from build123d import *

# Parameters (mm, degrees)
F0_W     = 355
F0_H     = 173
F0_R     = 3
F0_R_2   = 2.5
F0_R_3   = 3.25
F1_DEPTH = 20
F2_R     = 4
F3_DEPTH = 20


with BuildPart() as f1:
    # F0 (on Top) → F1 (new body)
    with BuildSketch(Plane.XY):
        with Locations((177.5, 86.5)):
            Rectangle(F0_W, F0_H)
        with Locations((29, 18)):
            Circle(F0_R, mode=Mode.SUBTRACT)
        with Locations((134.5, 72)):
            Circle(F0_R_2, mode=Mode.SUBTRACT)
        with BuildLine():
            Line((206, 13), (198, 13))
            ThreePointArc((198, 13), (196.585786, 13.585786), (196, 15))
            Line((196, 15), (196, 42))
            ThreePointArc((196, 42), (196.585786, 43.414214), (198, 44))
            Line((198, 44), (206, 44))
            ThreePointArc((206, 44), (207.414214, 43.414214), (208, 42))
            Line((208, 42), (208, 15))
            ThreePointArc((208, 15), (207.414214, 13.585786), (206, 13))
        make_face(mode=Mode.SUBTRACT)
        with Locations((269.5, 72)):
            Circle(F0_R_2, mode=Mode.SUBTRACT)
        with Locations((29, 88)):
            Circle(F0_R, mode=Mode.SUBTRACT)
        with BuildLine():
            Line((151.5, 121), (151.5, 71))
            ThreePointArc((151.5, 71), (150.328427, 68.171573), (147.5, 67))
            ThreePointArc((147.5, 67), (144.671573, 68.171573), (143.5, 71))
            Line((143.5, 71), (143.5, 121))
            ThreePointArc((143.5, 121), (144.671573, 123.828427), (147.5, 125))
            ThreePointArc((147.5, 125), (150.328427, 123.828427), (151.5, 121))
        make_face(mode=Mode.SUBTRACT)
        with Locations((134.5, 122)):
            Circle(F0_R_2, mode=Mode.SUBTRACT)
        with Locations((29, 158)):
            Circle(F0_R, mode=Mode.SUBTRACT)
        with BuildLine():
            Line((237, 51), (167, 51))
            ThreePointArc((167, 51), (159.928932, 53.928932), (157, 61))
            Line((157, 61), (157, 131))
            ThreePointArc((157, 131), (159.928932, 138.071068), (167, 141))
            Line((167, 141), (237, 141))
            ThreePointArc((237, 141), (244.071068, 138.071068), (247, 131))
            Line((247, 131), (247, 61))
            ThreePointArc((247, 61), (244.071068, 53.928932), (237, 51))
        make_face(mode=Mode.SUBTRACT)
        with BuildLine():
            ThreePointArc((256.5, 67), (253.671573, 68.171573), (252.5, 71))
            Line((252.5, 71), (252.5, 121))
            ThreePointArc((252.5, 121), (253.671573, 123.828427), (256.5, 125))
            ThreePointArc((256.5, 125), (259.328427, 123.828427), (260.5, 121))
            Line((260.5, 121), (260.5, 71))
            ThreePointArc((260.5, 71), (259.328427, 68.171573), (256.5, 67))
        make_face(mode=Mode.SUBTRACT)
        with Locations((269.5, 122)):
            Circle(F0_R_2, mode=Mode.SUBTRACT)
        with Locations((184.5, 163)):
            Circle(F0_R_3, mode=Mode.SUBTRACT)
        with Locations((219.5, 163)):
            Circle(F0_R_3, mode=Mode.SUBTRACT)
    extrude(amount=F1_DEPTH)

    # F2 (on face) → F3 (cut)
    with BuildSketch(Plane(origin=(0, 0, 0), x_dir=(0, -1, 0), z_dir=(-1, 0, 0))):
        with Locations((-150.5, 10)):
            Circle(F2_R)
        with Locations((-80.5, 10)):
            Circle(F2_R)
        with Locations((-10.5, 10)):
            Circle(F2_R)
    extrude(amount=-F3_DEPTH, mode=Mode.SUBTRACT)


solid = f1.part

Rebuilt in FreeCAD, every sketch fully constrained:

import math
import FreeCAD as App
import Part
import Sketcher
Q = App.Units.Quantity


def add_polygon(sketch, points):
    """Adds a closed chain of lines whose ends are joined by coincident constraints."""
    first, n = sketch.GeometryCount, len(points)
    for a, b in zip(points, points[1:] + points[:1]):
        sketch.addGeometry(Part.LineSegment(App.Vector(*a, 0), App.Vector(*b, 0)), False)
    for i in range(n):
        sketch.addConstraint(Sketcher.Constraint("Coincident", first + i, 2, first + (i + 1) % n, 1))

doc = App.newDocument("Part")
body = doc.addObject("PartDesign::Body", "Body")

# Sketch on XY plane
sketch1 = doc.addObject("Sketcher::SketchObject", "Sketch")
body.addObject(sketch1)
sketch1.AttachmentSupport = (doc.XY_Plane, [""])
sketch1.MapMode = "FlatFace"
add_polygon(sketch1, [(0, 173), (0, 0), (355, 0), (355, 173)])  # lines 0-3
sketch1.addGeometry(Part.Circle(App.Vector(29, 18, 0), App.Vector(0, 0, 1), 3), False)  # 4
sketch1.addGeometry(Part.Circle(App.Vector(29, 88, 0), App.Vector(0, 0, 1), 3), False)  # 5
sketch1.addGeometry(Part.Circle(App.Vector(134.5, 72, 0), App.Vector(0, 0, 1), 2.5), False)  # 6
sketch1.addGeometry(Part.ArcOfCircle(Part.Circle(App.Vector(206, 15, 0), App.Vector(0, 0, 1), 2), math.radians(-90), math.radians(0)), False)  # 7
sketch1.addGeometry(Part.LineSegment(App.Vector(206, 13, 0), App.Vector(198, 13, 0)), False)  # 8
sketch1.addGeometry(Part.ArcOfCircle(Part.Circle(App.Vector(198, 15, 0), App.Vector(0, 0, 1), 2), math.radians(180), math.radians(270)), False)  # 9
sketch1.addGeometry(Part.LineSegment(App.Vector(196, 15, 0), App.Vector(196, 42, 0)), False)  # 10
sketch1.addGeometry(Part.ArcOfCircle(Part.Circle(App.Vector(198, 42, 0), App.Vector(0, 0, 1), 2), math.radians(90), math.radians(180)), False)  # 11
sketch1.addGeometry(Part.LineSegment(App.Vector(198, 44, 0), App.Vector(206, 44, 0)), False)  # 12
sketch1.addGeometry(Part.ArcOfCircle(Part.Circle(App.Vector(206, 42, 0), App.Vector(0, 0, 1), 2), math.radians(0), math.radians(90)), False)  # 13
sketch1.addGeometry(Part.LineSegment(App.Vector(208, 42, 0), App.Vector(208, 15, 0)), False)  # 14
sketch1.addGeometry(Part.Circle(App.Vector(269.5, 72, 0), App.Vector(0, 0, 1), 2.5), False)  # 15
sketch1.addGeometry(Part.ArcOfCircle(Part.Circle(App.Vector(147.5, 121, 0), App.Vector(0, 0, 1), 4), math.radians(0), math.radians(90)), False)  # 16
sketch1.addGeometry(Part.LineSegment(App.Vector(151.5, 121, 0), App.Vector(151.5, 71, 0)), False)  # 17
sketch1.addGeometry(Part.ArcOfCircle(Part.Circle(App.Vector(147.5, 71, 0), App.Vector(0, 0, 1), 4), math.radians(-90), math.radians(0)), False)  # 18
sketch1.addGeometry(Part.ArcOfCircle(Part.Circle(App.Vector(147.5, 71, 0), App.Vector(0, 0, 1), 4), math.radians(-180), math.radians(-90)), False)  # 19
sketch1.addGeometry(Part.LineSegment(App.Vector(143.5, 71, 0), App.Vector(143.5, 121, 0)), False)  # 20
sketch1.addGeometry(Part.ArcOfCircle(Part.Circle(App.Vector(147.5, 121, 0), App.Vector(0, 0, 1), 4), math.radians(90), math.radians(180)), False)  # 21
sketch1.addGeometry(Part.Circle(App.Vector(134.5, 122, 0), App.Vector(0, 0, 1), 2.5), False)  # 22
sketch1.addGeometry(Part.Circle(App.Vector(29, 158, 0), App.Vector(0, 0, 1), 3), False)  # 23
sketch1.addGeometry(Part.ArcOfCircle(Part.Circle(App.Vector(237, 61, 0), App.Vector(0, 0, 1), 10), math.radians(-90), math.radians(0)), False)  # 24
sketch1.addGeometry(Part.LineSegment(App.Vector(237, 51, 0), App.Vector(167, 51, 0)), False)  # 25
sketch1.addGeometry(Part.ArcOfCircle(Part.Circle(App.Vector(167, 61, 0), App.Vector(0, 0, 1), 10), math.radians(180), math.radians(270)), False)  # 26
sketch1.addGeometry(Part.LineSegment(App.Vector(157, 61, 0), App.Vector(157, 131, 0)), False)  # 27
sketch1.addGeometry(Part.ArcOfCircle(Part.Circle(App.Vector(167, 131, 0), App.Vector(0, 0, 1), 10), math.radians(90), math.radians(180)), False)  # 28
sketch1.addGeometry(Part.LineSegment(App.Vector(167, 141, 0), App.Vector(237, 141, 0)), False)  # 29
sketch1.addGeometry(Part.ArcOfCircle(Part.Circle(App.Vector(237, 131, 0), App.Vector(0, 0, 1), 10), math.radians(0), math.radians(90)), False)  # 30
sketch1.addGeometry(Part.LineSegment(App.Vector(247, 131, 0), App.Vector(247, 61, 0)), False)  # 31
sketch1.addGeometry(Part.ArcOfCircle(Part.Circle(App.Vector(256.5, 71, 0), App.Vector(0, 0, 1), 4), math.radians(-90), math.radians(0)), False)  # 32
sketch1.addGeometry(Part.ArcOfCircle(Part.Circle(App.Vector(256.5, 71, 0), App.Vector(0, 0, 1), 4), math.radians(-180), math.radians(-90)), False)  # 33
sketch1.addGeometry(Part.LineSegment(App.Vector(252.5, 71, 0), App.Vector(252.5, 121, 0)), False)  # 34
sketch1.addGeometry(Part.ArcOfCircle(Part.Circle(App.Vector(256.5, 121, 0), App.Vector(0, 0, 1), 4), math.radians(90), math.radians(180)), False)  # 35
sketch1.addGeometry(Part.ArcOfCircle(Part.Circle(App.Vector(256.5, 121, 0), App.Vector(0, 0, 1), 4), math.radians(0), math.radians(90)), False)  # 36
sketch1.addGeometry(Part.LineSegment(App.Vector(260.5, 121, 0), App.Vector(260.5, 71, 0)), False)  # 37
sketch1.addGeometry(Part.Circle(App.Vector(269.5, 122, 0), App.Vector(0, 0, 1), 2.5), False)  # 38
sketch1.addGeometry(Part.Circle(App.Vector(184.5, 163, 0), App.Vector(0, 0, 1), 3.2), False)  # 39
sketch1.addGeometry(Part.Circle(App.Vector(219.5, 163, 0), App.Vector(0, 0, 1), 3.2), False)  # 40
sketch1.addConstraint([
    Sketcher.Constraint("Tangent", 7, 1, 8, 1),
    Sketcher.Constraint("Tangent", 8, 2, 9, 2),
    Sketcher.Constraint("Tangent", 9, 1, 10, 1),
    Sketcher.Constraint("Tangent", 10, 2, 11, 2),
    Sketcher.Constraint("Tangent", 11, 1, 12, 1),
    Sketcher.Constraint("Tangent", 12, 2, 13, 2),
    Sketcher.Constraint("Tangent", 13, 1, 14, 1),
    Sketcher.Constraint("Tangent", 14, 2, 7, 2),
    Sketcher.Constraint("Tangent", 16, 1, 17, 1),
    Sketcher.Constraint("Tangent", 17, 2, 18, 2),
    Sketcher.Constraint("Tangent", 18, 1, 19, 2),
    Sketcher.Constraint("Tangent", 19, 1, 20, 1),
    Sketcher.Constraint("Tangent", 20, 2, 21, 2),
    Sketcher.Constraint("Tangent", 21, 1, 16, 2),
    Sketcher.Constraint("Tangent", 24, 1, 25, 1),
    Sketcher.Constraint("Tangent", 25, 2, 26, 2),
    Sketcher.Constraint("Tangent", 26, 1, 27, 1),
    Sketcher.Constraint("Tangent", 27, 2, 28, 2),
    Sketcher.Constraint("Tangent", 28, 1, 29, 1),
    Sketcher.Constraint("Tangent", 29, 2, 30, 2),
    Sketcher.Constraint("Tangent", 30, 1, 31, 1),
    Sketcher.Constraint("Tangent", 31, 2, 24, 2),
    Sketcher.Constraint("Tangent", 32, 1, 33, 2),
    Sketcher.Constraint("Tangent", 33, 1, 34, 1),
    Sketcher.Constraint("Tangent", 34, 2, 35, 2),
    Sketcher.Constraint("Tangent", 35, 1, 36, 2),
    Sketcher.Constraint("Tangent", 36, 1, 37, 1),
    Sketcher.Constraint("Tangent", 37, 2, 32, 2),
    Sketcher.Constraint("Vertical", 0),
    Sketcher.Constraint("Horizontal", 1),
    Sketcher.Constraint("Vertical", 2),
    Sketcher.Constraint("Horizontal", 3),
    Sketcher.Constraint("Horizontal", 8),
    Sketcher.Constraint("Vertical", 10),
    Sketcher.Constraint("Horizontal", 12),
    Sketcher.Constraint("Vertical", 14),
    Sketcher.Constraint("Vertical", 17),
    Sketcher.Constraint("Vertical", 20),
    Sketcher.Constraint("Horizontal", 25),
    Sketcher.Constraint("Vertical", 27),
    Sketcher.Constraint("Horizontal", 29),
    Sketcher.Constraint("Vertical", 31),
    Sketcher.Constraint("Vertical", 34),
    Sketcher.Constraint("Vertical", 37),
    Sketcher.Constraint("Coincident", 0, 2, -1, 1),
    Sketcher.Constraint("Equal", 4, 5),
    Sketcher.Constraint("Equal", 7, 9),
    Sketcher.Constraint("Equal", 9, 11),
    Sketcher.Constraint("Equal", 11, 13),
    Sketcher.Constraint("Equal", 6, 15),
    Sketcher.Constraint("Equal", 16, 18),
    Sketcher.Constraint("Equal", 18, 19),
    Sketcher.Constraint("Equal", 15, 22),
    Sketcher.Constraint("Equal", 5, 23),
    Sketcher.Constraint("Equal", 24, 26),
    Sketcher.Constraint("Equal", 26, 28),
    Sketcher.Constraint("Equal", 28, 30),
    Sketcher.Constraint("Equal", 21, 32),
    Sketcher.Constraint("Equal", 32, 33),
    Sketcher.Constraint("Equal", 33, 35),
    Sketcher.Constraint("Equal", 22, 38),
    Sketcher.Constraint("Equal", 39, 40),
    Sketcher.Constraint("Horizontal", 6, 3, 15, 3),
    Sketcher.Constraint("Horizontal", 19, 3, 32, 3),
    Sketcher.Constraint("Horizontal", 21, 3, 35, 3),
    Sketcher.Constraint("Horizontal", 22, 3, 38, 3),
    Sketcher.Constraint("Horizontal", 39, 3, 40, 3),
    Sketcher.Constraint("Vertical", 4, 3, 5, 3),
    Sketcher.Constraint("Vertical", 6, 3, 22, 3),
    Sketcher.Constraint("Vertical", 5, 3, 23, 3),
    Sketcher.Constraint("Vertical", 15, 3, 38, 3),
    Sketcher.Constraint("Vertical", 21, 3, 18, 1),
    Sketcher.Constraint("Vertical", 18, 1, 21, 1),
    Sketcher.Constraint("Vertical", 36, 3, 32, 1),
    Sketcher.Constraint("Vertical", 32, 1, 35, 1),
    Sketcher.Constraint("Equal", 29, 27),
    Sketcher.Constraint("Diameter", 4, Q("6 mm")),
    Sketcher.Constraint("Diameter", 6, Q("5 mm")),
    Sketcher.Constraint("Radius", 7, Q("1.999999 mm")),
    Sketcher.Constraint("Radius", 16, Q("4 mm")),
    Sketcher.Constraint("Radius", 24, Q("9.999999 mm")),
    Sketcher.Constraint("Diameter", 39, Q("6.5 mm")),
    Sketcher.Constraint("DistanceX", 1, 1, 1, 2, Q("355 mm")),
    Sketcher.Constraint("DistanceX", 8, 2, 8, 1, Q("8 mm")),
    Sketcher.Constraint("DistanceX", 25, 2, 25, 1, Q("70 mm")),
    Sketcher.Constraint("DistanceY", 0, 2, 0, 1, Q("173 mm")),
    Sketcher.Constraint("DistanceY", 10, 1, 10, 2, Q("27 mm")),
    Sketcher.Constraint("DistanceY", 17, 2, 17, 1, Q("50 mm")),
    Sketcher.Constraint("DistanceX", -1, 1, 4, 3, Q("29 mm")),
    Sketcher.Constraint("DistanceY", -1, 1, 4, 3, Q("18 mm")),
    Sketcher.Constraint("DistanceY", -1, 1, 5, 3, Q("88 mm")),
    Sketcher.Constraint("DistanceY", -1, 1, 6, 3, Q("72 mm")),
    Sketcher.Constraint("DistanceX", -1, 1, 7, 3, Q("206.000001 mm")),
    Sketcher.Constraint("DistanceY", -1, 1, 7, 3, Q("14.999999 mm")),
    Sketcher.Constraint("DistanceY", -1, 1, 16, 3, Q("121 mm")),
    Sketcher.Constraint("DistanceY", -1, 1, 22, 3, Q("122 mm")),
    Sketcher.Constraint("DistanceY", -1, 1, 23, 3, Q("158 mm")),
    Sketcher.Constraint("DistanceX", -1, 1, 24, 3, Q("237.000001 mm")),
    Sketcher.Constraint("DistanceY", -1, 1, 24, 3, Q("60.999999 mm")),
    Sketcher.Constraint("DistanceY", -1, 1, 39, 3, Q("163 mm")),
    Sketcher.Constraint("DistanceX", 6, 3, 15, 3, Q("135 mm")),
    Sketcher.Constraint("DistanceX", 6, 3, 16, 3, Q("13 mm")),
    Sketcher.Constraint("DistanceX", 32, 3, 15, 3, Q("13 mm")),
    Sketcher.Constraint("DistanceX", 21, 3, 39, 3, Q("37 mm")),
    Sketcher.Constraint("DistanceX", 39, 3, 40, 3, Q("35 mm")),
    Sketcher.Constraint("DistanceX", -1, 1, 6, 3, Q("134.5 mm")),
])
pad1 = doc.addObject("PartDesign::Pad", "Pad")
body.addObject(pad1)
pad1.Profile = sketch1
pad1.Length = 20

# Sketch on YZ plane
sketch2 = doc.addObject("Sketcher::SketchObject", "Sketch001")
body.addObject(sketch2)
sketch2.AttachmentSupport = (doc.YZ_Plane, [""])
sketch2.MapMode = "FlatFace"
sketch2.addGeometry([
    Part.Circle(App.Vector(150.5, 10, 0), App.Vector(0, 0, 1), 4),
    Part.Circle(App.Vector(80.5, 10, 0), App.Vector(0, 0, 1), 4),
    Part.Circle(App.Vector(10.5, 10, 0), App.Vector(0, 0, 1), 4),
], False)
sketch2.addConstraint([
    Sketcher.Constraint("Equal", 0, 1),
    Sketcher.Constraint("Equal", 1, 2),
    Sketcher.Constraint("Horizontal", 0, 3, 1, 3),
    Sketcher.Constraint("Horizontal", 1, 3, 2, 3),
    Sketcher.Constraint("Diameter", 0, Q("8 mm")),
    Sketcher.Constraint("DistanceY", -1, 1, 0, 3, Q("10 mm")),
    Sketcher.Constraint("DistanceX", 1, 3, 0, 3, Q("70 mm")),
    Sketcher.Constraint("DistanceX", 2, 3, 1, 3, Q("70 mm")),
    Sketcher.Constraint("DistanceX", -1, 1, 0, 3, Q("150.5 mm")),
])
pocket1 = doc.addObject("PartDesign::Pocket", "Pocket")
body.addObject(pocket1)
pocket1.Profile = sketch2
pocket1.Length = 20
pocket1.Reversed = True

doc.recompute()
